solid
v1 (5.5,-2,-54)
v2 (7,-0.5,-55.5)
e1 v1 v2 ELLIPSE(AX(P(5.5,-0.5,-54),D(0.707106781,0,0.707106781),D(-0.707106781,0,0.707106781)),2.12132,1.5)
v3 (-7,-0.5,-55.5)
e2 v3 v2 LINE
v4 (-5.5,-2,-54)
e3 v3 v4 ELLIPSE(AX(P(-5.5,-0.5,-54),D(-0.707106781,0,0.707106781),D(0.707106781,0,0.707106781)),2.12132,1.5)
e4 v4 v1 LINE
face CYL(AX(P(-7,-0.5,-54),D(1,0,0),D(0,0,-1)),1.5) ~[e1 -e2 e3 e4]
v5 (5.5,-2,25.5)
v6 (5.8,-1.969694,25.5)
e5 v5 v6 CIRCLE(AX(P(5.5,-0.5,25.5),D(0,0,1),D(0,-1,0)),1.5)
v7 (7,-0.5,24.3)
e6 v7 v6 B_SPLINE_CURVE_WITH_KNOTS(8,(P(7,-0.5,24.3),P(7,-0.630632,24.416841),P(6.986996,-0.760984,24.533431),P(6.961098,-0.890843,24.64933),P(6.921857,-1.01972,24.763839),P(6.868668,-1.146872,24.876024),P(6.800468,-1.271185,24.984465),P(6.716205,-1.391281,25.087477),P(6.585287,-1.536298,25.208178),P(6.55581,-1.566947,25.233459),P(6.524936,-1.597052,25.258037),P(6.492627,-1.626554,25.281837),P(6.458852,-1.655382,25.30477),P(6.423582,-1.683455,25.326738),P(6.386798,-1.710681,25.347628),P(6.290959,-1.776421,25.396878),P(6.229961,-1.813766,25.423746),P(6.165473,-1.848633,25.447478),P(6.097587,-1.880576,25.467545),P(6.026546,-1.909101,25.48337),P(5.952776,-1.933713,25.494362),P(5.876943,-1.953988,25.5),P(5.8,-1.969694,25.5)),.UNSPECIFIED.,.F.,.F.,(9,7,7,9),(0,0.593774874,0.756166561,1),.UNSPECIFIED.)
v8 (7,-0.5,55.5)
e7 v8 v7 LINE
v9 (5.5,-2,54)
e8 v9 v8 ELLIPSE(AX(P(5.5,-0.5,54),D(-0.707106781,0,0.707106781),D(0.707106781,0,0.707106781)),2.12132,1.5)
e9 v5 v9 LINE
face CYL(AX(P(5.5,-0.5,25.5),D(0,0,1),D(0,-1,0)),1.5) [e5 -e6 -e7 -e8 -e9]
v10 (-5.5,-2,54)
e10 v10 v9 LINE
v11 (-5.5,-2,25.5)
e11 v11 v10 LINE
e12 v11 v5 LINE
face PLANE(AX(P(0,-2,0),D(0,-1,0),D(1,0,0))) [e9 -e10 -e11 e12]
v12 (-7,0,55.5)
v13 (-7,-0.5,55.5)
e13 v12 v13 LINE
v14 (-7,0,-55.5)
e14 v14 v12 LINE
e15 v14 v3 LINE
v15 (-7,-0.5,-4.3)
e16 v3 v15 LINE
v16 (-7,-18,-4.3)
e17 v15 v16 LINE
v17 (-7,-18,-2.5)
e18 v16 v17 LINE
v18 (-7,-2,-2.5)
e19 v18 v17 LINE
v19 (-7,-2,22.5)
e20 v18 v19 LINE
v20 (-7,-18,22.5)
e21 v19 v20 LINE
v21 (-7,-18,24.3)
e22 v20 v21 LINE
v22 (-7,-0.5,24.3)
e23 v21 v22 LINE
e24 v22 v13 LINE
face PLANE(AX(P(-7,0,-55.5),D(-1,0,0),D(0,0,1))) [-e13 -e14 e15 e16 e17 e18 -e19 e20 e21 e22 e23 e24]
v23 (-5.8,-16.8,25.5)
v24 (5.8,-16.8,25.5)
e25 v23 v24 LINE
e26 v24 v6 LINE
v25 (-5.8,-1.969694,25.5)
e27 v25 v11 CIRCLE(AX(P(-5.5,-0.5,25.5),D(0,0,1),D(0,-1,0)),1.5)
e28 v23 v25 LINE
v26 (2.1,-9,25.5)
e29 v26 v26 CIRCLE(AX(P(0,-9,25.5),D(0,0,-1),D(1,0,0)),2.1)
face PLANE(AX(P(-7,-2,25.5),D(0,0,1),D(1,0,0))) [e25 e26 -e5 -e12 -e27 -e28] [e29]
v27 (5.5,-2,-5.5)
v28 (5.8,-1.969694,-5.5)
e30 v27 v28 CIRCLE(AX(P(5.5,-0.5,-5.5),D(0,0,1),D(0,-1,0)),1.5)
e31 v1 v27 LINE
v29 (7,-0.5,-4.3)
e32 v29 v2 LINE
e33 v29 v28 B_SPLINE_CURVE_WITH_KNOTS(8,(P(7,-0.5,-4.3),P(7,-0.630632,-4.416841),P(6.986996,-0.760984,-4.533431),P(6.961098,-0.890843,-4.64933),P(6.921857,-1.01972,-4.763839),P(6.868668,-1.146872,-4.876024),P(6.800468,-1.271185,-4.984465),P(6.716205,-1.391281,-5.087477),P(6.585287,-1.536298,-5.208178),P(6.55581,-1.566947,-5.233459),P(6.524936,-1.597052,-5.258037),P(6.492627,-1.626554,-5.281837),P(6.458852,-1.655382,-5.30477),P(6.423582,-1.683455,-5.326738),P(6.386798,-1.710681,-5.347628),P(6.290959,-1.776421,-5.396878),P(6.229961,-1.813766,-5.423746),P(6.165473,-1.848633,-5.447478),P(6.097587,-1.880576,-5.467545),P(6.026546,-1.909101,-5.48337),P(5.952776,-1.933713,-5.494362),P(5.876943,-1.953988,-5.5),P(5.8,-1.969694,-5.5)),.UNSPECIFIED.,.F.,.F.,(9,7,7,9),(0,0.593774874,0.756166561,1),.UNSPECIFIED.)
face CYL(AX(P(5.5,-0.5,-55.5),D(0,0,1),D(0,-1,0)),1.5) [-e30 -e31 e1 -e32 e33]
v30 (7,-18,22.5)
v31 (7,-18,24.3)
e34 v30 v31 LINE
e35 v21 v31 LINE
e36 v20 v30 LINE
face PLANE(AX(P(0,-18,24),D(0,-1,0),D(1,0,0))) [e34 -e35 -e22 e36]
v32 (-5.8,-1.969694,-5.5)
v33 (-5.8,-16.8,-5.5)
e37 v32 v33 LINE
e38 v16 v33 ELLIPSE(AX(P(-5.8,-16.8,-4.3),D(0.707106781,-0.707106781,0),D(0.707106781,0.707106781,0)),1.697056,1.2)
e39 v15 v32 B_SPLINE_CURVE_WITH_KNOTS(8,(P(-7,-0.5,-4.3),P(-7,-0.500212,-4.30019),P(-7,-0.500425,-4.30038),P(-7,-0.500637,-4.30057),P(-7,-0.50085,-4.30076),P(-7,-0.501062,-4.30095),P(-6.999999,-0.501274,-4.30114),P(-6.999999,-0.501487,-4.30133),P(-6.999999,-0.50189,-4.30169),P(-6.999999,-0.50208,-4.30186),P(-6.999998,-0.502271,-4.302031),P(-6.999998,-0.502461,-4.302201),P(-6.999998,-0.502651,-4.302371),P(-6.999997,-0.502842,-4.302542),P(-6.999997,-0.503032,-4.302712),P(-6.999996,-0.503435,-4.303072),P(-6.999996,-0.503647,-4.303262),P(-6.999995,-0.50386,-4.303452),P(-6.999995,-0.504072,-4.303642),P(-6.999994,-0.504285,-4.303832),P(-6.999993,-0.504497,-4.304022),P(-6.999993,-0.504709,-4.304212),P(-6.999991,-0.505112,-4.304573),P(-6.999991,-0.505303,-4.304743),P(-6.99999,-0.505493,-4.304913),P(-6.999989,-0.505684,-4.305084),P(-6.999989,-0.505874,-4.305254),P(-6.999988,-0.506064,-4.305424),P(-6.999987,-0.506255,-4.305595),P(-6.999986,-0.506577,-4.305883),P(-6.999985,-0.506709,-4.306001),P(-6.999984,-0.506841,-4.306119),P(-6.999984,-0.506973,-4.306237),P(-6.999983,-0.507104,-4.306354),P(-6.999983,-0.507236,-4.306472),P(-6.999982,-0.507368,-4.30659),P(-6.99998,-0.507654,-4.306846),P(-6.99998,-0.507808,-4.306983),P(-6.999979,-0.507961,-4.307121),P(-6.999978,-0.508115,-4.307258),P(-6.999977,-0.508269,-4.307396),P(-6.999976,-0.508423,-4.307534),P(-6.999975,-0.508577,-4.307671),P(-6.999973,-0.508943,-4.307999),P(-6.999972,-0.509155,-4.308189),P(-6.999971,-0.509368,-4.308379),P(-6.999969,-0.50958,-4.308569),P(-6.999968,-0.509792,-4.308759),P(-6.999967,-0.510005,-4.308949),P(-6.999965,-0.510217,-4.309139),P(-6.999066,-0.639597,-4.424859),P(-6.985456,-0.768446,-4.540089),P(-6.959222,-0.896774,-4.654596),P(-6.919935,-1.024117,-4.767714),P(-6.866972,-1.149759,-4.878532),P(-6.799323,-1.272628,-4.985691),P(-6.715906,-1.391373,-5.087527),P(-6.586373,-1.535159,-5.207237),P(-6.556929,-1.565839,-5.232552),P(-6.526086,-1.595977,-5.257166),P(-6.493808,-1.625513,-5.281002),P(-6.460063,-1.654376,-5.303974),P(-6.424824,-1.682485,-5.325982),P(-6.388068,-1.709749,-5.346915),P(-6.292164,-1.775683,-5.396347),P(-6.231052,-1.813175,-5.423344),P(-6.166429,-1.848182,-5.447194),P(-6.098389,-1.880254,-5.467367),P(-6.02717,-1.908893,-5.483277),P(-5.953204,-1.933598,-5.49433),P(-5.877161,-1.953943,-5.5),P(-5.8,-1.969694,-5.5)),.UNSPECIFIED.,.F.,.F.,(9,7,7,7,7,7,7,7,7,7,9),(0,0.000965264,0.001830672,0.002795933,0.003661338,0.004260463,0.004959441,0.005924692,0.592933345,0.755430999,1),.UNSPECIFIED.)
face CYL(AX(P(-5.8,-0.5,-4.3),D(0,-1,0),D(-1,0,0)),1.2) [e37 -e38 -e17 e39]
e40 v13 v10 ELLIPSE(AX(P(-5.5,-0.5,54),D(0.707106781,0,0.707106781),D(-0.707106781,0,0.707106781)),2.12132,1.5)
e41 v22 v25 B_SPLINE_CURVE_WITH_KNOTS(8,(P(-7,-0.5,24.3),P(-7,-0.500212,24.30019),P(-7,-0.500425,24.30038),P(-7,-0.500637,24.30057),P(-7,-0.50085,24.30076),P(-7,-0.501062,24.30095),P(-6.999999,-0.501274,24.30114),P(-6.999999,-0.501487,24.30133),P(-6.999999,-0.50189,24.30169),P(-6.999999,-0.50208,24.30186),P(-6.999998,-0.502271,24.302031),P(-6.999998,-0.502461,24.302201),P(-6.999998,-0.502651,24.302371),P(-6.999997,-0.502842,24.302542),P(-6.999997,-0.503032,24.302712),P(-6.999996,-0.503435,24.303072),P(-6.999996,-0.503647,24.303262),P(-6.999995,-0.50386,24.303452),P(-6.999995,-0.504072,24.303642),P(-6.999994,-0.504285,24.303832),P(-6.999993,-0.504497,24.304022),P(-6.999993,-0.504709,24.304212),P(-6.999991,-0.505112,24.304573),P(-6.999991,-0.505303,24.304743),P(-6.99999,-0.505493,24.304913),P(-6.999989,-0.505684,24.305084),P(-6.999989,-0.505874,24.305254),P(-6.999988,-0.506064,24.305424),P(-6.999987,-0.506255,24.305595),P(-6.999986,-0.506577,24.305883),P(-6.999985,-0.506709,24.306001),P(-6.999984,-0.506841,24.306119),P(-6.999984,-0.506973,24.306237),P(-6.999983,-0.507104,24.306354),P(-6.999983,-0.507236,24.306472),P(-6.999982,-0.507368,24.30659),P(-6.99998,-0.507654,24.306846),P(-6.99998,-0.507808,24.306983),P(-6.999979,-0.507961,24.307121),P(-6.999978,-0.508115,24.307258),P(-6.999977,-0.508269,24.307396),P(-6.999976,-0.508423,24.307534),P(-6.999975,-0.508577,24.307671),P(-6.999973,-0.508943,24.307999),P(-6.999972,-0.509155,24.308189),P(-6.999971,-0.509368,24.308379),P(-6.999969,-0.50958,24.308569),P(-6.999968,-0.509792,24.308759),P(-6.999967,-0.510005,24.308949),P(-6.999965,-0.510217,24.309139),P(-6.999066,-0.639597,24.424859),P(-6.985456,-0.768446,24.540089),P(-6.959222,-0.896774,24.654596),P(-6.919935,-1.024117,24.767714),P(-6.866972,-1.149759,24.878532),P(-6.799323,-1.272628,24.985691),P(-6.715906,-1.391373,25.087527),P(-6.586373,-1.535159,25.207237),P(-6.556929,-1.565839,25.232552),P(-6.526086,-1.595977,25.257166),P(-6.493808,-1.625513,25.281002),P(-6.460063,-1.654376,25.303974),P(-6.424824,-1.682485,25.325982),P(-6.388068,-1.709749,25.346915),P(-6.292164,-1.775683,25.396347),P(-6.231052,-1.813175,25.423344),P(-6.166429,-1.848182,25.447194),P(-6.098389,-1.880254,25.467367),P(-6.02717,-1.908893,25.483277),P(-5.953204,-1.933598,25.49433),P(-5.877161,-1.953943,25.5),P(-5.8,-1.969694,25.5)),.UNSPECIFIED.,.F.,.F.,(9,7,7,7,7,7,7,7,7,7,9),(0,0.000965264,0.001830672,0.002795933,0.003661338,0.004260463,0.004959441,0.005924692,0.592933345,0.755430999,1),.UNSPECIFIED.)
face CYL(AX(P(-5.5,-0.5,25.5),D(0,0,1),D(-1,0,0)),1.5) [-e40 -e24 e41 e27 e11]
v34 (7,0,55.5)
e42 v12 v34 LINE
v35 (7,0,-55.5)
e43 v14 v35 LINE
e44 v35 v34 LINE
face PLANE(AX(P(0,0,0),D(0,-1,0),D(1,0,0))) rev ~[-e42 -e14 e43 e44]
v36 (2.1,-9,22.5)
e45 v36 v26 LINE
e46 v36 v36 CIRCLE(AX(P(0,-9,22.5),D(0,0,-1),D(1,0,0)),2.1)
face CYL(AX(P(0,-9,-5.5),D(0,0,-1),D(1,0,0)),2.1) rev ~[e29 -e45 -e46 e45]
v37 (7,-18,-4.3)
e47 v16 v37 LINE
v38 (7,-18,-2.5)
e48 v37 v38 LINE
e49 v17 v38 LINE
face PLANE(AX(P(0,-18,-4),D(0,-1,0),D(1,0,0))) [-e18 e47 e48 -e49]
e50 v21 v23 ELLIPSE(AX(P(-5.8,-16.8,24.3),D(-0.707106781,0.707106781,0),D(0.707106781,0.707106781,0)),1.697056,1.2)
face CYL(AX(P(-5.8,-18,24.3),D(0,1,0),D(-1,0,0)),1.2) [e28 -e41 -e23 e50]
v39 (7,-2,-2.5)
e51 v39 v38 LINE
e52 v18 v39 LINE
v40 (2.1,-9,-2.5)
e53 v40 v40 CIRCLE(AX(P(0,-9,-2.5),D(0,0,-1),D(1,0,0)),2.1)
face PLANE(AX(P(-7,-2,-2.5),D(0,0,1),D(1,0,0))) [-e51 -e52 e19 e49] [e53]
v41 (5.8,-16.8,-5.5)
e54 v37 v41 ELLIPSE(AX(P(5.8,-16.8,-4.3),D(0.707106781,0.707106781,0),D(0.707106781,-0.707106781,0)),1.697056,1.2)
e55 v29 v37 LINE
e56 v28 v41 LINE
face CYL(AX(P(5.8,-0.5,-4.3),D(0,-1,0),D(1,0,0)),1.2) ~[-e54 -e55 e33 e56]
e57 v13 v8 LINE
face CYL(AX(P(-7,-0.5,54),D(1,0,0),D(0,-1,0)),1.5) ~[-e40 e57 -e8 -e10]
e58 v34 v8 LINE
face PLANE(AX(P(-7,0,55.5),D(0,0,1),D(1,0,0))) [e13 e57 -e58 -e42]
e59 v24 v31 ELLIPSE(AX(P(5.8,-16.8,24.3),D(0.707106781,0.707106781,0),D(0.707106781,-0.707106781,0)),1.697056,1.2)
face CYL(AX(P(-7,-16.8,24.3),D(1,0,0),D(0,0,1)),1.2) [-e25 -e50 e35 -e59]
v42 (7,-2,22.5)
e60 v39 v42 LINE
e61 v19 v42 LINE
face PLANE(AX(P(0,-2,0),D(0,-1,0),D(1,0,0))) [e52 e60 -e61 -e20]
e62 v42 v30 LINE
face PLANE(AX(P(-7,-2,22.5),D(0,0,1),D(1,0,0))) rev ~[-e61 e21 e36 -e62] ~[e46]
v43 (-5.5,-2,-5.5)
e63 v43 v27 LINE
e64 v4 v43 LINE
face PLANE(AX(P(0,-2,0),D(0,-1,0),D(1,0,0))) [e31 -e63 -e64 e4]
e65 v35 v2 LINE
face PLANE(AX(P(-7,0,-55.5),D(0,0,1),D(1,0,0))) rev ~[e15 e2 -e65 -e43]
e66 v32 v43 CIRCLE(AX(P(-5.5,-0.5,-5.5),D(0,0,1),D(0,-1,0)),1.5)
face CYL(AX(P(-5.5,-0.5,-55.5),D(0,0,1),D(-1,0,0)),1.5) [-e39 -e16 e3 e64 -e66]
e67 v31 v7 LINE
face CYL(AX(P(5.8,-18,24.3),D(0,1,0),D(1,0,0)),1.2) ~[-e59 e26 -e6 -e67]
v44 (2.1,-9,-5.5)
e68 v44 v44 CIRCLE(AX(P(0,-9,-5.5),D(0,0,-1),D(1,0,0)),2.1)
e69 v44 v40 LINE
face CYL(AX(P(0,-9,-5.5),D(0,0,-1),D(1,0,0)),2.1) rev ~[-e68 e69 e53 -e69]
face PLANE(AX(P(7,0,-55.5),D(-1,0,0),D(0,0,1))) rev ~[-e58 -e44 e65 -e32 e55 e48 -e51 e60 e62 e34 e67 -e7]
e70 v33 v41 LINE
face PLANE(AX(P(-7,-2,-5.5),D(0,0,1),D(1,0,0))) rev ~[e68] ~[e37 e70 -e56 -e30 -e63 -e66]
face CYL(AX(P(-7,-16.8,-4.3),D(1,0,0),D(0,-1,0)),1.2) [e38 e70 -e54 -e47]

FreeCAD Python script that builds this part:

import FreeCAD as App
import Part
import Sketcher

V = App.Vector


def edges_at(feature, points):
    """Names of the edges that pass closest to the given points."""
    edges = feature.Shape.Edges
    near = lambda p: min(range(len(edges)), key=lambda i: edges[i].distToShape(Part.Vertex(*p))[0])
    return sorted({f"Edge{near(p) + 1}" for p in points})

doc = App.newDocument("Part")
body = doc.addObject("PartDesign::Body", "Body")

# Sketch on XZ plane
sketch1 = body.newObject("Sketcher::SketchObject", "Sketch")
sketch1.AttachmentSupport = (doc.getObject("XZ_Plane"), [""])
sketch1.MapMode = "FlatFace"
sketch1.addGeometry([
    Part.LineSegment(V(-7, 56, 0), V(-7, -56, 0)),
    Part.LineSegment(V(-7, -56, 0), V(7, -56, 0)),
    Part.LineSegment(V(7, -56, 0), V(7, 56, 0)),
    Part.LineSegment(V(7, 56, 0), V(-7, 56, 0)),
], False)
sketch1.addConstraint([
    Sketcher.Constraint("Coincident", 0, 2, 1, 1),
    Sketcher.Constraint("Coincident", 1, 2, 2, 1),
    Sketcher.Constraint("Coincident", 2, 2, 3, 1),
    Sketcher.Constraint("Coincident", 3, 2, 0, 1),
    Sketcher.Constraint("Vertical", 0),
    Sketcher.Constraint("Horizontal", 1),
    Sketcher.Constraint("Vertical", 2),
    Sketcher.Constraint("Horizontal", 3),
    Sketcher.Constraint("Symmetric", 0, 2, 2, 2, -1, 1),
    Sketcher.Constraint("DistanceX", 1, 1, 1, 2, 14.0),
    Sketcher.Constraint("DistanceY", 0, 2, 0, 1, 111.0),
])
pad1 = body.newObject("PartDesign::Pad", "Pad")
pad1.Profile = sketch1
pad1.Length = 2

# Sketch on XZ plane
sketch2 = body.newObject("Sketcher::SketchObject", "Sketch001")
sketch2.AttachmentSupport = (doc.getObject("XZ_Plane"), [""])
sketch2.MapMode = "FlatFace"
sketch2.AttachmentOffset = App.Placement(V(0, 0, 2), App.Rotation())
sketch2.addGeometry([
    Part.LineSegment(V(-7, 25.5, 0), V(-7, 22.5, 0)),
    Part.LineSegment(V(-7, 22.5, 0), V(7, 22.5, 0)),
    Part.LineSegment(V(7, 22.5, 0), V(7, 25.5, 0)),
    Part.LineSegment(V(7, 25.5, 0), V(-7, 25.5, 0)),
], False)
sketch2.addConstraint([
    Sketcher.Constraint("Coincident", 0, 2, 1, 1),
    Sketcher.Constraint("Coincident", 1, 2, 2, 1),
    Sketcher.Constraint("Coincident", 2, 2, 3, 1),
    Sketcher.Constraint("Coincident", 3, 2, 0, 1),
    Sketcher.Constraint("Vertical", 0),
    Sketcher.Constraint("Horizontal", 1),
    Sketcher.Constraint("Vertical", 2),
    Sketcher.Constraint("Horizontal", 3),
    Sketcher.Constraint("DistanceX", 1, 1, 1, 2, 14.0),
    Sketcher.Constraint("DistanceY", 0, 2, 0, 1, 3.0),
    Sketcher.Constraint("DistanceX", 0, 2, -1, 1, 7.0),
    Sketcher.Constraint("DistanceY", -1, 1, 0, 2, 22.5),
])
pad2 = body.newObject("PartDesign::Pad", "Pad001")
pad2.Profile = sketch2
pad2.Length = 16

# Sketch on XZ plane
sketch3 = body.newObject("Sketcher::SketchObject", "Sketch002")
sketch3.AttachmentSupport = (doc.getObject("XZ_Plane"), [""])
sketch3.MapMode = "FlatFace"
sketch3.AttachmentOffset = App.Placement(V(0, 0, 2), App.Rotation())
sketch3.addGeometry([
    Part.LineSegment(V(-7, -2.5, 0), V(-7, -5.5, 0)),
    Part.LineSegment(V(-7, -5.5, 0), V(7, -5.5, 0)),
    Part.LineSegment(V(7, -5.5, 0), V(7, -2.5, 0)),
    Part.LineSegment(V(7, -2.5, 0), V(-7, -2.5, 0)),
], False)
sketch3.addConstraint([
    Sketcher.Constraint("Coincident", 0, 2, 1, 1),
    Sketcher.Constraint("Coincident", 1, 2, 2, 1),
    Sketcher.Constraint("Coincident", 2, 2, 3, 1),
    Sketcher.Constraint("Coincident", 3, 2, 0, 1),
    Sketcher.Constraint("Vertical", 0),
    Sketcher.Constraint("Horizontal", 1),
    Sketcher.Constraint("Vertical", 2),
    Sketcher.Constraint("Horizontal", 3),
    Sketcher.Constraint("DistanceX", 1, 1, 1, 2, 14.0),
    Sketcher.Constraint("DistanceY", 0, 2, 0, 1, 3.0),
    Sketcher.Constraint("DistanceX", 0, 2, -1, 1, 7.0),
    Sketcher.Constraint("DistanceY", 0, 2, -1, 1, 5.5),
])
pad3 = body.newObject("PartDesign::Pad", "Pad002")
pad3.Profile = sketch3
pad3.Length = 16

# Sketch on XY plane
sketch4 = body.newObject("Sketcher::SketchObject", "Sketch003")
sketch4.AttachmentSupport = (doc.getObject("XY_Plane"), [""])
sketch4.MapMode = "FlatFace"
sketch4.AttachmentOffset = App.Placement(V(0, 0, -5.5), App.Rotation())
sketch4.addGeometry(Part.Circle(V(0, -9, 0), V(0, 0, 1), 2.1), False)
sketch4.addConstraint([
    Sketcher.Constraint("PointOnObject", 0, 3, -2),
    Sketcher.Constraint("Diameter", 0, 4.2),
    Sketcher.Constraint("DistanceY", 0, 3, -1, 1, 9.0),
])
pocket1 = body.newObject("PartDesign::Pocket", "Pocket")
pocket1.Profile = sketch4
pocket1.Type = "ThroughAll"
pocket1.Reversed = True
doc.recompute()

fillet = body.newObject("PartDesign::Fillet", "Fillet")
fillet.Base = (pocket1, edges_at(pocket1, [
    (7, -2, 40.5),
    (-7, -2, 40.5),
    (0, -2, 55.5),
    (-7, -2, -30.5),
    (7, -2, -30.5),
    (0, -2, -55.5),
]))
fillet.Radius = 1.5
doc.recompute()

fillet2 = body.newObject("PartDesign::Fillet", "Fillet001")
fillet2.Base = (fillet, edges_at(fillet, [
    (-7, -9.25, 25.5),
    (0, -18, 25.5),
    (7, -9.25, 25.5),
    (0, -18, -5.5),
    (7, -9.25, -5.5),
    (-7, -9.25, -5.5),
]))
fillet2.Radius = 1.2

doc.recompute()
